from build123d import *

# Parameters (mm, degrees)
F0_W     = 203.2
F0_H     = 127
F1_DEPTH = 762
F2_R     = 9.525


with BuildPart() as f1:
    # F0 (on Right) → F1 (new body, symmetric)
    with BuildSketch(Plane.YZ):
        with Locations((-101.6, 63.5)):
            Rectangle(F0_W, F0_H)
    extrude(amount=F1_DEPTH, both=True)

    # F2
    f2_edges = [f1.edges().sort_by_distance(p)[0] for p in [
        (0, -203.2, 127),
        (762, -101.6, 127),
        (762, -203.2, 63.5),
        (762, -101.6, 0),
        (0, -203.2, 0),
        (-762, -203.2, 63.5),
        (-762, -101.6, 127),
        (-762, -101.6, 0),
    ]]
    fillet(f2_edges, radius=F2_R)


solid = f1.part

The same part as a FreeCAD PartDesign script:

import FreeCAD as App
import Part
import Sketcher
from FreeCAD import Vector
Q = App.Units.Quantity


def edges_at(feature, points):
    """Names of the edges that pass closest to the given points."""
    edges = feature.Shape.Edges
    near = lambda p: min(range(len(edges)), key=lambda i: edges[i].distToShape(Part.Vertex(*p))[0])
    return sorted({f"Edge{near(p) + 1}" for p in points})


def add_polygon(sketch, points):
    """Adds a closed chain of lines whose ends are joined by coincident constraints."""
    first, n = sketch.GeometryCount, len(points)
    for a, b in zip(points, points[1:] + points[:1]):
        sketch.addGeometry(Part.LineSegment(App.Vector(*a, 0), App.Vector(*b, 0)), False)
    for i in range(n):
        sketch.addConstraint(Sketcher.Constraint("Coincident", first + i, 2, first + (i + 1) % n, 1))

doc = App.newDocument("Part")
body = doc.addObject("PartDesign::Body", "Body")

sketch1 = body.newObject("Sketcher::SketchObject", "Sketch")
sketch1.AttachmentSupport = (doc.getObject("YZ_Plane"), [""])
sketch1.MapMode = "FlatFace"
add_polygon(sketch1, [(-203, 127), (-203, 0), (0, 0), (0, 127)])
sketch1.addConstraint([
    Sketcher.Constraint("Vertical", 0),
    Sketcher.Constraint("Horizontal", 1),
    Sketcher.Constraint("Vertical", 2),
    Sketcher.Constraint("Horizontal", 3),
    Sketcher.Constraint("Coincident", 1, 2, -1, 1),
    Sketcher.Constraint("DistanceX", 1, 1, 1, 2, Q("8 in")),
    Sketcher.Constraint("DistanceY", 0, 2, 0, 1, Q("5 in")),
])
pad1 = body.newObject("PartDesign::Pad", "Pad")
pad1.Profile = sketch1
pad1.Length = Q("60 in")
pad1.Midplane = True
doc.recompute()

fillet = body.newObject("PartDesign::Fillet", "Fillet")
fillet.Base = (pad1, edges_at(pad1, [
    (0, -203.2, 127),
    (762, -101.6, 127),
    (762, -203.2, 63.5),
    (762, -101.6, 0),
    (0, -203.2, 0),
    (-762, -203.2, 63.5),
    (-762, -101.6, 127),
    (-762, -101.6, 0),
]))
fillet.Radius = Q("0.375 in")

doc.recompute()
